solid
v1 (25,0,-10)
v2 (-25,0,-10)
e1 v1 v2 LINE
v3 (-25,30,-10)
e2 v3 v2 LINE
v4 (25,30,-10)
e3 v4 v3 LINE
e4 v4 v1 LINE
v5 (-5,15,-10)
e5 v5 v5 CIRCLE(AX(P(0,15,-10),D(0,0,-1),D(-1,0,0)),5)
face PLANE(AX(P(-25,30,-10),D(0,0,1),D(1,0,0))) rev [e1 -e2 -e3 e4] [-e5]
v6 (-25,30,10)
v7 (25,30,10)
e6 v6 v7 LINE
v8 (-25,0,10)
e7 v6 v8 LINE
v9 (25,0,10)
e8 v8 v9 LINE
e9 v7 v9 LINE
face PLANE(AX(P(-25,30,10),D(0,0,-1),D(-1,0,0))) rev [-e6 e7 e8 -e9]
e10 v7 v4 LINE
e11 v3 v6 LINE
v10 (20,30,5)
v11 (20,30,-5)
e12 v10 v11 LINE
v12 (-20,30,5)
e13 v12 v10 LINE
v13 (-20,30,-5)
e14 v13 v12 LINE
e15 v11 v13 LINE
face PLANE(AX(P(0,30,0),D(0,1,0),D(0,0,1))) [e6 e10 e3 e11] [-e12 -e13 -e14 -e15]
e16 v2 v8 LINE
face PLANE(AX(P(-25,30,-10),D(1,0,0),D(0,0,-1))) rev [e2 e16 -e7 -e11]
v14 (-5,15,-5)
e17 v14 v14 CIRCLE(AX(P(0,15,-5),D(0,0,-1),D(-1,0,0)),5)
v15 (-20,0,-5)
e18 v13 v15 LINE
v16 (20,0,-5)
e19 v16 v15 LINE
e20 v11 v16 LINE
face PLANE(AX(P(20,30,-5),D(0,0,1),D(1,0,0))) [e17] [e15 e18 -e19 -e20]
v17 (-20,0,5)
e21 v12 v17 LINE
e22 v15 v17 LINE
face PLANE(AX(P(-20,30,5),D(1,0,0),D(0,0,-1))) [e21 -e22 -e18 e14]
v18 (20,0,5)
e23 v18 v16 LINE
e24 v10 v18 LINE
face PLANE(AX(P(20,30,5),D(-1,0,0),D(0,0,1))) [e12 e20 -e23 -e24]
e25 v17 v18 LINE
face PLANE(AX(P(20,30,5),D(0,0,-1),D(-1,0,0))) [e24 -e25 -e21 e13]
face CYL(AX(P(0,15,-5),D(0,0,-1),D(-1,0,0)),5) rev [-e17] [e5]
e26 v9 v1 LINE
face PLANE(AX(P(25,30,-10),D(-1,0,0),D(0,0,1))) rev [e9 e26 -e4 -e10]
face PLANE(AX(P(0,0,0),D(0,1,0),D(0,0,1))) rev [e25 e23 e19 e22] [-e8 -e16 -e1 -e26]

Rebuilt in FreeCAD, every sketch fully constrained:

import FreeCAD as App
import Part
import Sketcher
Q = App.Units.Quantity


def add_polygon(sketch, points):
    """Adds a closed chain of lines whose ends are joined by coincident constraints."""
    first, n = sketch.GeometryCount, len(points)
    for a, b in zip(points, points[1:] + points[:1]):
        sketch.addGeometry(Part.LineSegment(App.Vector(*a, 0), App.Vector(*b, 0)), False)
    for i in range(n):
        sketch.addConstraint(Sketcher.Constraint("Coincident", first + i, 2, first + (i + 1) % n, 1))

doc = App.newDocument("Part")
params = doc.addObject("Spreadsheet::Sheet", "Params")
for row, (alias, value) in enumerate([
    ("sketch1_width", "50 mm"),
    ("sketch1_width2", "40 mm"),
    ("sketch1_height", "20 mm"),
    ("sketch1_height2", "10 mm"),
    ("pad1_length", "30 mm"),
    ("sketch2_diameter", "10 mm"),
    ("pocket1_length", "5 mm"),
], start=1):
    params.set(f"A{row}", alias)
    params.set(f"B{row}", "=" + value)
    params.setAlias(f"B{row}", alias)

body = doc.addObject("PartDesign::Body", "Body")

sketch1 = body.newObject("Sketcher::SketchObject", "Sketch")
sketch1.AttachmentSupport = (doc.getObject("XZ_Plane"), [""])
sketch1.MapMode = "FlatFace"
add_polygon(sketch1, [(-25, -10), (-25, 10), (25, 10), (25, -10)])
add_polygon(sketch1, [(20, 5), (-20, 5), (-20, -5), (20, -5)])
sketch1.addConstraint([
    Sketcher.Constraint("Vertical", 0),
    Sketcher.Constraint("Horizontal", 1),
    Sketcher.Constraint("Vertical", 2),
    Sketcher.Constraint("Horizontal", 3),
    Sketcher.Constraint("Horizontal", 4),
    Sketcher.Constraint("Vertical", 5),
    Sketcher.Constraint("Horizontal", 6),
    Sketcher.Constraint("Vertical", 7),
    Sketcher.Constraint("Symmetric", 0, 2, 2, 2, -1, 1),
    Sketcher.Constraint("Symmetric", 4, 2, 6, 2, -1, 1),
    Sketcher.Constraint("DistanceX", 1, 1, 1, 2, Q("50 mm")),
    Sketcher.Constraint("DistanceX", 4, 2, 4, 1, Q("40 mm")),
    Sketcher.Constraint("DistanceY", 0, 1, 0, 2, Q("20 mm")),
    Sketcher.Constraint("DistanceY", 5, 2, 5, 1, Q("10 mm")),
])
sketch1.setExpression("Constraints[18]", "Params.sketch1_width")
sketch1.setExpression("Constraints[19]", "Params.sketch1_width2")
sketch1.setExpression("Constraints[20]", "Params.sketch1_height")
sketch1.setExpression("Constraints[21]", "Params.sketch1_height2")
pad1 = body.newObject("PartDesign::Pad", "Pad")
pad1.Profile = sketch1
pad1.setExpression("Length", "Params.pad1_length")
pad1.Reversed = True

sketch2 = body.newObject("Sketcher::SketchObject", "Sketch001")
sketch2.AttachmentSupport = (doc.getObject("XY_Plane"), [""])
sketch2.MapMode = "FlatFace"
sketch2.AttachmentOffset = App.Placement(App.Vector(0, 0, -10), App.Rotation())
sketch2.addGeometry(Part.Circle(App.Vector(0, 15, 0), App.Vector(0, 0, 1), 5), False)
sketch2.addConstraint([
    Sketcher.Constraint("PointOnObject", 0, 3, -2),
    Sketcher.Constraint("Diameter", 0, Q("10 mm")),
    Sketcher.Constraint("DistanceY", -1, 1, 0, 3, Q("15 mm")),
])
sketch2.setExpression("Constraints[1]", "Params.sketch2_diameter")
pocket1 = body.newObject("PartDesign::Pocket", "Pocket")
pocket1.Profile = sketch2
pocket1.setExpression("Length", "Params.pocket1_length")
pocket1.Reversed = True

doc.recompute()
